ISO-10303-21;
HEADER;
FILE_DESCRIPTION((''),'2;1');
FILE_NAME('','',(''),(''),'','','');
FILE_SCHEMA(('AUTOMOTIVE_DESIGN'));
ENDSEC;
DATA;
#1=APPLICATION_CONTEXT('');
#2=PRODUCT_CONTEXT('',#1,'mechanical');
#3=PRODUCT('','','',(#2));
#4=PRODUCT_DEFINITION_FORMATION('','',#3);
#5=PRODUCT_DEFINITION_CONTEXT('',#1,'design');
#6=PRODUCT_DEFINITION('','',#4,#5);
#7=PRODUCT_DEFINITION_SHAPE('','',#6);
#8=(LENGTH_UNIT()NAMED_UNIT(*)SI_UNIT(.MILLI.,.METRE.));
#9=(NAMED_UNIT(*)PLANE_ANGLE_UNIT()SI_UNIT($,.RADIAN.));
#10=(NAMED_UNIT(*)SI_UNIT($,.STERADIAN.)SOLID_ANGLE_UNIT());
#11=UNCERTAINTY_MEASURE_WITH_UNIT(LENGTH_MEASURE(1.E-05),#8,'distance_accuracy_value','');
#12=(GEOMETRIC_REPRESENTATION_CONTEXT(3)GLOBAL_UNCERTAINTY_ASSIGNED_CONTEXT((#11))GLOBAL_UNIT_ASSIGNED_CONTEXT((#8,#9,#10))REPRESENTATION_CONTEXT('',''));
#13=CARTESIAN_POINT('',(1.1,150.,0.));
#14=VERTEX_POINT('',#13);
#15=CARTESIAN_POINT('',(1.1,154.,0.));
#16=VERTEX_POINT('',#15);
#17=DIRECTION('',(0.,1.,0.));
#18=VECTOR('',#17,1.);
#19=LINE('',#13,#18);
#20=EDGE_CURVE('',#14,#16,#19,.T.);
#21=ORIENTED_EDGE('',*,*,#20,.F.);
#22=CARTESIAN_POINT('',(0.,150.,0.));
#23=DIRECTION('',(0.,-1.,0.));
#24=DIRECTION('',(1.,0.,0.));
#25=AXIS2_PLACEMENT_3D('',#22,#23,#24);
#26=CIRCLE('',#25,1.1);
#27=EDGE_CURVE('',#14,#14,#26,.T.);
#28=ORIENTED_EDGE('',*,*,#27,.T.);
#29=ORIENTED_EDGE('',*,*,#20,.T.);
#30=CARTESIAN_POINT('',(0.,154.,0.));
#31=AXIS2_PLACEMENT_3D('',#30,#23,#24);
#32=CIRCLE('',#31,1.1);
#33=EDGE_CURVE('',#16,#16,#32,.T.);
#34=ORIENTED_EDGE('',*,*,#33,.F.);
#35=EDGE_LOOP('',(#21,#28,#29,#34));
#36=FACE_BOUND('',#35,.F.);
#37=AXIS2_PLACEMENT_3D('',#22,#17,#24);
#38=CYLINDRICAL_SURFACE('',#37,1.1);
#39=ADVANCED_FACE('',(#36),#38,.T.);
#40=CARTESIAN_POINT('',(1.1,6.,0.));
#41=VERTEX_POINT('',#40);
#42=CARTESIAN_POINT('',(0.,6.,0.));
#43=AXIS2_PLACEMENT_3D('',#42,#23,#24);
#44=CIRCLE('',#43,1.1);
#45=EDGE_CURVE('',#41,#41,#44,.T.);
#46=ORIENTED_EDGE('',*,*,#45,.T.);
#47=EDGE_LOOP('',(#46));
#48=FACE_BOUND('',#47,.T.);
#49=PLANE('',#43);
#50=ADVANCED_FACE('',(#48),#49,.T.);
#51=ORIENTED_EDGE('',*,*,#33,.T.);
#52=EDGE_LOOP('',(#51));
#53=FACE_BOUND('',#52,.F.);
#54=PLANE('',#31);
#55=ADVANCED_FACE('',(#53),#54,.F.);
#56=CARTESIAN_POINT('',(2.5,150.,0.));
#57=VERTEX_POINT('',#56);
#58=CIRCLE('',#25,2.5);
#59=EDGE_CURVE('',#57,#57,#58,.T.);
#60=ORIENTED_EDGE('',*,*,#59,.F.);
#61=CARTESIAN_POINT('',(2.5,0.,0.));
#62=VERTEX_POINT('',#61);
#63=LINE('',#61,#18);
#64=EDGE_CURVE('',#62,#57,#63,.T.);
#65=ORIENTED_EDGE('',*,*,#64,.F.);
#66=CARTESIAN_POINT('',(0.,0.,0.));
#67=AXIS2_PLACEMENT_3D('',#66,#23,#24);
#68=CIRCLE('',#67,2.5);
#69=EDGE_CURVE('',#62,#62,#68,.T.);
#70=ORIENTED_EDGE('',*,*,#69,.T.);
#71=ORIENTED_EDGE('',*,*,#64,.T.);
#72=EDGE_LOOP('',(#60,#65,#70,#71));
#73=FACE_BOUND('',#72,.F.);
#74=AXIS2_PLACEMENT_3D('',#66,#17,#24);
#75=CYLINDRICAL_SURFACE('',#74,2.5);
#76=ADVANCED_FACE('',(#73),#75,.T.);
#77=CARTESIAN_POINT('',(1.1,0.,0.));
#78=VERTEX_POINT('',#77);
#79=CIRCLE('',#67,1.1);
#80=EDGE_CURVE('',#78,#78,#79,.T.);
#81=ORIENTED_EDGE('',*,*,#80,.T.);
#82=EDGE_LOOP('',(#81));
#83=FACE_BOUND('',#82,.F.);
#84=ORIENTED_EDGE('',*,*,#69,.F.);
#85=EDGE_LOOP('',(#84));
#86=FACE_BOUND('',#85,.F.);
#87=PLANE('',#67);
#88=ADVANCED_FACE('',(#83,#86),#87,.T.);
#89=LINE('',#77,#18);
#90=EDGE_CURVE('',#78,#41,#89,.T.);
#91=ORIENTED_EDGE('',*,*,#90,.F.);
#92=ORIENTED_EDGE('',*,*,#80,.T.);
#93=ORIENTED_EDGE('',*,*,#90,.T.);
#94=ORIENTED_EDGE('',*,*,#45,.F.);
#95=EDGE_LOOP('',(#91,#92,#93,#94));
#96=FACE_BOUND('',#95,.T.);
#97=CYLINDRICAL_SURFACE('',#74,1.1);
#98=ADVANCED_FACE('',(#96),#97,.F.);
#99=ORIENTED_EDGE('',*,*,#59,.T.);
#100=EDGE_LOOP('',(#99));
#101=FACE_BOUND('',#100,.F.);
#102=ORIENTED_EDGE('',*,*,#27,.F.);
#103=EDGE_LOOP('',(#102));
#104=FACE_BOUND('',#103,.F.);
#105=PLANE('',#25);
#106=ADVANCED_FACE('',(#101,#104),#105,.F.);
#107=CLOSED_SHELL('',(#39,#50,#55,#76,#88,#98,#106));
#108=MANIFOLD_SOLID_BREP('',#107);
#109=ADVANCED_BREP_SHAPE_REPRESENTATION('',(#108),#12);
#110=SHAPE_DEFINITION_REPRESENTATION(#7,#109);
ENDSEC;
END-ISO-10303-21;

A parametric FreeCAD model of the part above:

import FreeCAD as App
import Part
import Sketcher
Q = App.Units.Quantity

doc = App.newDocument("Part")
params = doc.addObject("Spreadsheet::Sheet", "Params")
for row, (alias, value) in enumerate([
    ("sketch1_height", "6 mm"),
    ("sketch1_height2", "150 mm"),
    ("sketch1_height3", "4 mm"),
    ("sketch1_width", "1.1 mm"),
    ("revolution_angle", "360 deg"),
], start=1):
    params.set(f"A{row}", alias)
    params.set(f"B{row}", "=" + value)
    params.setAlias(f"B{row}", alias)

body = doc.addObject("PartDesign::Body", "Body")

# Sketch on XY plane
sketch1 = doc.addObject("Sketcher::SketchObject", "Sketch")
body.addObject(sketch1)
sketch1.AttachmentSupport = (doc.XY_Plane, [""])
sketch1.MapMode = "FlatFace"
sketch1.addGeometry([
    Part.LineSegment(App.Vector(1.1, 6, 0), App.Vector(1.1, 0, 0)),  # 0
    Part.LineSegment(App.Vector(1.1, 0, 0), App.Vector(2.5, 0, 0)),  # 1
    Part.LineSegment(App.Vector(2.5, 0, 0), App.Vector(2.5, 150, 0)),  # 2
    Part.LineSegment(App.Vector(2.5, 150, 0), App.Vector(1.1, 150, 0)),  # 3
    Part.LineSegment(App.Vector(1.1, 150, 0), App.Vector(1.1, 154, 0)),  # 4
    Part.LineSegment(App.Vector(1.1, 154, 0), App.Vector(0, 154, 0)),  # 5
    Part.LineSegment(App.Vector(0, 154, 0), App.Vector(0, 6, 0)),  # 6
    Part.LineSegment(App.Vector(0, 6, 0), App.Vector(1.1, 6, 0)),  # 7
], False)
sketch1.addConstraint([
    Sketcher.Constraint("Coincident", 0, 2, 1, 1),
    Sketcher.Constraint("Coincident", 1, 2, 2, 1),
    Sketcher.Constraint("Coincident", 2, 2, 3, 1),
    Sketcher.Constraint("Coincident", 3, 2, 4, 1),
    Sketcher.Constraint("Coincident", 4, 2, 5, 1),
    Sketcher.Constraint("Coincident", 5, 2, 6, 1),
    Sketcher.Constraint("Coincident", 6, 2, 7, 1),
    Sketcher.Constraint("Coincident", 7, 2, 0, 1),
    Sketcher.Constraint("Vertical", 0),
    Sketcher.Constraint("Horizontal", 1),
    Sketcher.Constraint("Vertical", 2),
    Sketcher.Constraint("Horizontal", 3),
    Sketcher.Constraint("Vertical", 4),
    Sketcher.Constraint("Horizontal", 5),
    Sketcher.Constraint("Vertical", 6),
    Sketcher.Constraint("Horizontal", 7),
    Sketcher.Constraint("PointOnObject", 0, 2, -1),
    Sketcher.Constraint("PointOnObject", 5, 2, -2),
    Sketcher.Constraint("Vertical", 0, 2, 3, 2),
    Sketcher.Constraint("DistanceY", 0, 2, 0, 1, Q("6 mm")),
    Sketcher.Constraint("DistanceY", 2, 1, 2, 2, Q("150 mm")),
    Sketcher.Constraint("DistanceY", 4, 1, 4, 2, Q("4 mm")),
    Sketcher.Constraint("DistanceX", 5, 2, 5, 1, Q("1.1 mm")),
    Sketcher.Constraint("DistanceX", -1, 1, 1, 2, Q("2.5 mm")),
])
sketch1.setExpression("Constraints[19]", "Params.sketch1_height")
sketch1.setExpression("Constraints[20]", "Params.sketch1_height2")
sketch1.setExpression("Constraints[21]", "Params.sketch1_height3")
sketch1.setExpression("Constraints[22]", "Params.sketch1_width")
revolution = doc.addObject("PartDesign::Revolution", "Revolution")
body.addObject(revolution)
revolution.Profile = sketch1
revolution.ReferenceAxis = (sketch1, ["V_Axis"])
revolution.setExpression("Angle", "Params.revolution_angle")

doc.recompute()
